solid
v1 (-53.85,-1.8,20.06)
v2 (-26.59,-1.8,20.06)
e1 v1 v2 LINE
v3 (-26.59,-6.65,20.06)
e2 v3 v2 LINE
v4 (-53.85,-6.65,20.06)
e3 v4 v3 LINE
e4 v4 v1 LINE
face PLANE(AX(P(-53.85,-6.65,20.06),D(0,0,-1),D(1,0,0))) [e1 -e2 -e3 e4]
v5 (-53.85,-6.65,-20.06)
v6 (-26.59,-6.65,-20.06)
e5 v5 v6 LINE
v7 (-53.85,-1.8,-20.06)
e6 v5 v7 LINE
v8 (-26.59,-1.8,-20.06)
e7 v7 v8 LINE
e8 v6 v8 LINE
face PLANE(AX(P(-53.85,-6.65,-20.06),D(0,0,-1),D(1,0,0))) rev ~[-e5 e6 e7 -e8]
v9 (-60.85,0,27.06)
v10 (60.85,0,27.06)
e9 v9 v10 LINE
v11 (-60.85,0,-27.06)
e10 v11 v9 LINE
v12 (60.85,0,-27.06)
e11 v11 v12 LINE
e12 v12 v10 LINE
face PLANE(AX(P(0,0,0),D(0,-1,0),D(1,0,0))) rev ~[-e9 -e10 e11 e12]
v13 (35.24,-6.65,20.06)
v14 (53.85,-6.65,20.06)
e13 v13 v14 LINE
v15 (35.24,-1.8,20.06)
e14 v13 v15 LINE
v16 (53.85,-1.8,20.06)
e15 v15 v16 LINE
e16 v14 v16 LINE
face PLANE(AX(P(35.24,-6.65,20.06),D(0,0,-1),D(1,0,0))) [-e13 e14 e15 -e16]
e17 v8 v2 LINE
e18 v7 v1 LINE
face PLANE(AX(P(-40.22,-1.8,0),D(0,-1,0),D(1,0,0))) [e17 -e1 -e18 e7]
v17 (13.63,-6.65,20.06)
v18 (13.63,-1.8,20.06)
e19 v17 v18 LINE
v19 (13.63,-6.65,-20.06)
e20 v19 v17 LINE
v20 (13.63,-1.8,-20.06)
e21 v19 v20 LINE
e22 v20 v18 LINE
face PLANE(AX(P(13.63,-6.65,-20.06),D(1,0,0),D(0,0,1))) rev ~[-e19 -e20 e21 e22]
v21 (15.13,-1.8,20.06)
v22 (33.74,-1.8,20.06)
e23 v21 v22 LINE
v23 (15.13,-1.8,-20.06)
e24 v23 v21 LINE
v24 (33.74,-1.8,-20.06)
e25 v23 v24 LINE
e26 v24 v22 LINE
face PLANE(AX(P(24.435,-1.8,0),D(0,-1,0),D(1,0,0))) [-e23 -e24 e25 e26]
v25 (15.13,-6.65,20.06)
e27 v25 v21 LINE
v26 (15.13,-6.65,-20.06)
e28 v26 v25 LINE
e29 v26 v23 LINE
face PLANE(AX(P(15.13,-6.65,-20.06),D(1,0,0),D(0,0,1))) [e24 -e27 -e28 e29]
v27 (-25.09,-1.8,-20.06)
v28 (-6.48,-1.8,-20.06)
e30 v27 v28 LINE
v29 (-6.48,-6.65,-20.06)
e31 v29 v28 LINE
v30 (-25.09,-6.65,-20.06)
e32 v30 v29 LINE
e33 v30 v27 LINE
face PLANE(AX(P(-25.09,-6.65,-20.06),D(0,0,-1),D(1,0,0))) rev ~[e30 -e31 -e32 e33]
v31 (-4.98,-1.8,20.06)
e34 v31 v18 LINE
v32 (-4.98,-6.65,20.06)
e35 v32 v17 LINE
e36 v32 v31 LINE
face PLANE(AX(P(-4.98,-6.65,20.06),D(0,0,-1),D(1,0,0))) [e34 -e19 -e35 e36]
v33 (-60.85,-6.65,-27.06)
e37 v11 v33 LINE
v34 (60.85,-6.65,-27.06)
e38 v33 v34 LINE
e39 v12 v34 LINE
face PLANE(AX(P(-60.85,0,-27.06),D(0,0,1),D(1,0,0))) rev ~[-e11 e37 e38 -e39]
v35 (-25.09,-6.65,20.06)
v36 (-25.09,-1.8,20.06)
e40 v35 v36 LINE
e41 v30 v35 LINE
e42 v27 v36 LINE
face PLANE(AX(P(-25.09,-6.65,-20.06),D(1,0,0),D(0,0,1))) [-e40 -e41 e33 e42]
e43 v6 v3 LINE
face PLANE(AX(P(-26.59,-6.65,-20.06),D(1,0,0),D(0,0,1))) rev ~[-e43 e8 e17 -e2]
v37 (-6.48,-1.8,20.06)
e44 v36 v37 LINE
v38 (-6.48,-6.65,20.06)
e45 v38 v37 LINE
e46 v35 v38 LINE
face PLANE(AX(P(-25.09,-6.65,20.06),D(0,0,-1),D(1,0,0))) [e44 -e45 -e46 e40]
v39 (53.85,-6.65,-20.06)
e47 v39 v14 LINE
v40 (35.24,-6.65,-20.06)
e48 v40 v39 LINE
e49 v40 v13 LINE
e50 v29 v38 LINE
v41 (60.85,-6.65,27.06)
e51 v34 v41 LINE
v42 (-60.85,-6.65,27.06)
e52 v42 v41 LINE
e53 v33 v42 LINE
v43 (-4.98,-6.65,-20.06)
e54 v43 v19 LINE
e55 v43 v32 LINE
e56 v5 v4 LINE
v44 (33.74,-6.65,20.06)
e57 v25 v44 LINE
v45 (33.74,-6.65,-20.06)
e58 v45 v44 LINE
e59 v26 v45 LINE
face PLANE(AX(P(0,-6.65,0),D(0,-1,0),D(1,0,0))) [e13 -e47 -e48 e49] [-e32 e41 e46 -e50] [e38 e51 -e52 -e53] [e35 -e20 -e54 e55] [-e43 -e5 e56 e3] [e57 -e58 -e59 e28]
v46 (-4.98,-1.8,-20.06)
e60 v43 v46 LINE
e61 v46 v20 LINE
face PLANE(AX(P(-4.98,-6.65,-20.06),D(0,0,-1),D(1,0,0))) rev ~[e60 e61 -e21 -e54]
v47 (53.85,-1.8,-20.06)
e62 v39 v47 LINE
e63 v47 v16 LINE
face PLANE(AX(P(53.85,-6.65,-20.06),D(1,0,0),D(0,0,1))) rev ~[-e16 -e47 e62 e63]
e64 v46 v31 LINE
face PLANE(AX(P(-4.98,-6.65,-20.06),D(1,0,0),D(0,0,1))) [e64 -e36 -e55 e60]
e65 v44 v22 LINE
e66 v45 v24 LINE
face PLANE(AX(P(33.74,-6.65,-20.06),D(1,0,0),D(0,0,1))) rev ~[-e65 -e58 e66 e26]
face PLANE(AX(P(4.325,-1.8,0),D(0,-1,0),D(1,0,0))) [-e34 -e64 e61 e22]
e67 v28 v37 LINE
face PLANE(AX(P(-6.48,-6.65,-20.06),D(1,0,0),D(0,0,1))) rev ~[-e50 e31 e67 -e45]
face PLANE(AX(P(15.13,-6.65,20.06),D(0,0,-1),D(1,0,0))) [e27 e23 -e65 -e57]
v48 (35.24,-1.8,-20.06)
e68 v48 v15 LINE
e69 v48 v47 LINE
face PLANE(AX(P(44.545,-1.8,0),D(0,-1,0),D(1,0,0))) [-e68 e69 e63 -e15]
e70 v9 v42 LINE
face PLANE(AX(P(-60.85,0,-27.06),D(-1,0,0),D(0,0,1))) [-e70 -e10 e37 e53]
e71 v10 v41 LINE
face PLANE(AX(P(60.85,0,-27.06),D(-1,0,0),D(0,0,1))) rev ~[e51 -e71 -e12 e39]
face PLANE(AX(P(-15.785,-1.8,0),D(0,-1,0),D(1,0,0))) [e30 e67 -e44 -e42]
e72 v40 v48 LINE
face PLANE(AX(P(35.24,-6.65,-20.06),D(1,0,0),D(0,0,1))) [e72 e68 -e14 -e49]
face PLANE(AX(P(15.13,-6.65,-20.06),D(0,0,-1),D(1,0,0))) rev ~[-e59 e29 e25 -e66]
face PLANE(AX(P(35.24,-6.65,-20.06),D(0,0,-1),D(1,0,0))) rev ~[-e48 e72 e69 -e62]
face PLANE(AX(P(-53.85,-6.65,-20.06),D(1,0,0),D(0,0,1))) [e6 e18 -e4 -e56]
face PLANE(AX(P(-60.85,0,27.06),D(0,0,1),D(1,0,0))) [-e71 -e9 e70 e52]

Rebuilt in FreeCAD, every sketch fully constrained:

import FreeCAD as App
import Part
import Sketcher
from FreeCAD import Vector
Q = App.Units.Quantity


def add_polygon(sketch, points):
    """Adds a closed chain of lines whose ends are joined by coincident constraints."""
    first, n = sketch.GeometryCount, len(points)
    for a, b in zip(points, points[1:] + points[:1]):
        sketch.addGeometry(Part.LineSegment(App.Vector(*a, 0), App.Vector(*b, 0)), False)
    for i in range(n):
        sketch.addConstraint(Sketcher.Constraint("Coincident", first + i, 2, first + (i + 1) % n, 1))

doc = App.newDocument("Part")
body = doc.addObject("PartDesign::Body", "Body")

# Sketch on XZ plane
sketch1 = body.newObject("Sketcher::SketchObject", "Sketch")
sketch1.AttachmentSupport = (doc.getObject("XZ_Plane"), [""])
sketch1.MapMode = "FlatFace"
add_polygon(sketch1, [(-61, 27), (-61, -27), (61, -27), (61, 27)])  # lines 0-3
sketch1.addConstraint([
    Sketcher.Constraint("Vertical", 0),
    Sketcher.Constraint("Horizontal", 1),
    Sketcher.Constraint("Vertical", 2),
    Sketcher.Constraint("Horizontal", 3),
    Sketcher.Constraint("Symmetric", 0, 2, 2, 2, -1, 1),
    Sketcher.Constraint("DistanceX", 1, 1, 1, 2, Q("121.7 mm")),
    Sketcher.Constraint("DistanceY", 0, 2, 0, 1, Q("54.12 mm")),
])
pad1 = body.newObject("PartDesign::Pad", "Pad")
pad1.Profile = sketch1
pad1.Length = 6.65

# Sketch on XZ plane
sketch2 = body.newObject("Sketcher::SketchObject", "Sketch001")
sketch2.AttachmentSupport = (doc.getObject("XZ_Plane"), [""])
sketch2.MapMode = "FlatFace"
sketch2.AttachmentOffset = App.Placement(Vector(0, 0, 6.65), App.Rotation())
add_polygon(sketch2, [(-54, 20), (-54, -20), (-27, -20), (-27, 20)])  # lines 0-3
add_polygon(sketch2, [(-25, 20), (-25, -20), (-6, -20), (-6, 20)])  # lines 4-7
add_polygon(sketch2, [(-5, 20), (-5, -20), (14, -20), (14, 20)])  # lines 8-11
add_polygon(sketch2, [(15, 20), (15, -20), (34, -20), (34, 20)])  # lines 12-15
add_polygon(sketch2, [(35, 20), (35, -20), (54, -20), (54, 20)])  # lines 16-19
sketch2.addConstraint([
    Sketcher.Constraint("Vertical", 0),
    Sketcher.Constraint("Horizontal", 1),
    Sketcher.Constraint("Vertical", 2),
    Sketcher.Constraint("Horizontal", 3),
    Sketcher.Constraint("Vertical", 4),
    Sketcher.Constraint("Horizontal", 5),
    Sketcher.Constraint("Vertical", 6),
    Sketcher.Constraint("Horizontal", 7),
    Sketcher.Constraint("Vertical", 8),
    Sketcher.Constraint("Horizontal", 9),
    Sketcher.Constraint("Vertical", 10),
    Sketcher.Constraint("Horizontal", 11),
    Sketcher.Constraint("Vertical", 12),
    Sketcher.Constraint("Horizontal", 13),
    Sketcher.Constraint("Vertical", 14),
    Sketcher.Constraint("Horizontal", 15),
    Sketcher.Constraint("Vertical", 16),
    Sketcher.Constraint("Horizontal", 17),
    Sketcher.Constraint("Vertical", 18),
    Sketcher.Constraint("Horizontal", 19),
    Sketcher.Constraint("Symmetric", 3, 2, 17, 2, -1, 1),
    Sketcher.Constraint("Horizontal", 1, 2, 4, 2),
    Sketcher.Constraint("Horizontal", 3, 2, 6, 2),
    Sketcher.Constraint("Horizontal", 5, 2, 8, 2),
    Sketcher.Constraint("Horizontal", 7, 2, 10, 2),
    Sketcher.Constraint("Horizontal", 9, 2, 12, 2),
    Sketcher.Constraint("Horizontal", 11, 2, 14, 2),
    Sketcher.Constraint("Horizontal", 13, 2, 16, 2),
    Sketcher.Constraint("Horizontal", 15, 2, 18, 2),
    Sketcher.Constraint("Equal", 7, 9),
    Sketcher.Constraint("Equal", 11, 13),
    Sketcher.Constraint("Equal", 15, 17),
    Sketcher.Constraint("DistanceX", 1, 1, 1, 2, Q("27.26 mm")),
    Sketcher.Constraint("DistanceX", 5, 1, 5, 2, Q("18.61 mm")),
    Sketcher.Constraint("DistanceY", 0, 2, 0, 1, Q("40.12 mm")),
    Sketcher.Constraint("DistanceX", 1, 2, 4, 2, Q("1.5 mm")),
    Sketcher.Constraint("DistanceX", 5, 2, 8, 2, Q("1.5 mm")),
    Sketcher.Constraint("DistanceX", 9, 2, 12, 2, Q("1.5 mm")),
    Sketcher.Constraint("DistanceX", 13, 2, 16, 2, Q("1.5 mm")),
])
pocket1 = body.newObject("PartDesign::Pocket", "Pocket")
pocket1.Profile = sketch2
pocket1.Length = 4.85

doc.recompute()
